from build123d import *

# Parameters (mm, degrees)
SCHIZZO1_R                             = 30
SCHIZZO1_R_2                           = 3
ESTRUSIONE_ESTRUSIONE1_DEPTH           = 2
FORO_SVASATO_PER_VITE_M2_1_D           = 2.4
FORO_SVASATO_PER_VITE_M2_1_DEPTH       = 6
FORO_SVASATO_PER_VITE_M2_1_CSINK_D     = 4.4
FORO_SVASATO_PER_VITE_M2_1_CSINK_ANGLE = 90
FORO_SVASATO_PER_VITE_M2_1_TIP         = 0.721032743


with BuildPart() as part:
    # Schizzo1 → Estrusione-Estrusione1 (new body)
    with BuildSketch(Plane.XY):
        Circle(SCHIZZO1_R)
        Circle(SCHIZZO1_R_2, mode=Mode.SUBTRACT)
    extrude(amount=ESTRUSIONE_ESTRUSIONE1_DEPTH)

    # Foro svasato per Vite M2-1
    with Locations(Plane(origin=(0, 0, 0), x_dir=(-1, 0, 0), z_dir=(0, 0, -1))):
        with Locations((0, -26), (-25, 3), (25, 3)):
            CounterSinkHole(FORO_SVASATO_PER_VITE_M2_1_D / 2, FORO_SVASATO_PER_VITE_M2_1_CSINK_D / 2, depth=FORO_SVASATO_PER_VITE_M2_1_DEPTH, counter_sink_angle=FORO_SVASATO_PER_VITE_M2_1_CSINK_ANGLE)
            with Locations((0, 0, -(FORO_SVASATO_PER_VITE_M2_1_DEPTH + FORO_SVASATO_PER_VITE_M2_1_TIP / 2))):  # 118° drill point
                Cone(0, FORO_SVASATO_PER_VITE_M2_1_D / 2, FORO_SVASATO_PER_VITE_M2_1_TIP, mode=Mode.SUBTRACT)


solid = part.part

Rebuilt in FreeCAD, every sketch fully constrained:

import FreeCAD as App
import Part
import Sketcher

doc = App.newDocument("Part")
body = doc.addObject("PartDesign::Body", "Body")

sketch1 = body.newObject("Sketcher::SketchObject", "Sketch")
sketch1.AttachmentSupport = (doc.getObject("XY_Plane"), [""])
sketch1.MapMode = "FlatFace"
sketch1.addGeometry(Part.Circle(App.Vector(0, 0, 0), App.Vector(0, 0, 1), 30), False)
sketch1.addGeometry(Part.Circle(App.Vector(0, 0, 0), App.Vector(0, 0, 1), 3), False)
sketch1.addConstraint(Sketcher.Constraint("Coincident", 0, 3, -1, 1))
sketch1.addConstraint(Sketcher.Constraint("Coincident", 1, 3, -1, 1))
sketch1.addConstraint(Sketcher.Constraint("Diameter", 0, 60.0))
sketch1.addConstraint(Sketcher.Constraint("Diameter", 1, 6.0))
pad1 = body.newObject("PartDesign::Pad", "Pad")
pad1.Profile = sketch1
pad1.Length = 2

sketch2 = body.newObject("Sketcher::SketchObject", "Sketch001")
sketch2.AttachmentSupport = (doc.getObject("XY_Plane"), [""])
sketch2.MapMode = "FlatFace"
sketch2.addGeometry(Part.Circle(App.Vector(0, -26, 0), App.Vector(0, 0, 1), 1.2), False)
sketch2.addGeometry(Part.Circle(App.Vector(25, 3, 0), App.Vector(0, 0, 1), 1.2), False)
sketch2.addGeometry(Part.Circle(App.Vector(-25, 3, 0), App.Vector(0, 0, 1), 1.2), False)
sketch2.addConstraint(Sketcher.Constraint("Equal", 0, 1))
sketch2.addConstraint(Sketcher.Constraint("Equal", 1, 2))
sketch2.addConstraint(Sketcher.Constraint("Symmetric", 1, 3, 2, 3, -2))
sketch2.addConstraint(Sketcher.Constraint("PointOnObject", 0, 3, -2))
sketch2.addConstraint(Sketcher.Constraint("Diameter", 0, 2.4))
sketch2.addConstraint(Sketcher.Constraint("DistanceY", 0, 3, -1, 1, 26.0))
sketch2.addConstraint(Sketcher.Constraint("DistanceX", -1, 1, 1, 3, 25.0))
sketch2.addConstraint(Sketcher.Constraint("DistanceY", -1, 1, 1, 3, 3.0))
doc.recompute()
hole = body.newObject("PartDesign::Hole", "Hole")
hole.Profile = sketch2
hole.ThreadType = "None"
hole.Diameter = 2.4
hole.DepthType = "Dimension"
hole.Depth = 6
hole.DrillPoint = "Angled"
hole.DrillPointAngle = 118
hole.HoleCutType = "Countersink"
hole.HoleCutDiameter = 4.4
hole.HoleCutCountersinkAngle = 90
hole.Reversed = True

doc.recompute()
